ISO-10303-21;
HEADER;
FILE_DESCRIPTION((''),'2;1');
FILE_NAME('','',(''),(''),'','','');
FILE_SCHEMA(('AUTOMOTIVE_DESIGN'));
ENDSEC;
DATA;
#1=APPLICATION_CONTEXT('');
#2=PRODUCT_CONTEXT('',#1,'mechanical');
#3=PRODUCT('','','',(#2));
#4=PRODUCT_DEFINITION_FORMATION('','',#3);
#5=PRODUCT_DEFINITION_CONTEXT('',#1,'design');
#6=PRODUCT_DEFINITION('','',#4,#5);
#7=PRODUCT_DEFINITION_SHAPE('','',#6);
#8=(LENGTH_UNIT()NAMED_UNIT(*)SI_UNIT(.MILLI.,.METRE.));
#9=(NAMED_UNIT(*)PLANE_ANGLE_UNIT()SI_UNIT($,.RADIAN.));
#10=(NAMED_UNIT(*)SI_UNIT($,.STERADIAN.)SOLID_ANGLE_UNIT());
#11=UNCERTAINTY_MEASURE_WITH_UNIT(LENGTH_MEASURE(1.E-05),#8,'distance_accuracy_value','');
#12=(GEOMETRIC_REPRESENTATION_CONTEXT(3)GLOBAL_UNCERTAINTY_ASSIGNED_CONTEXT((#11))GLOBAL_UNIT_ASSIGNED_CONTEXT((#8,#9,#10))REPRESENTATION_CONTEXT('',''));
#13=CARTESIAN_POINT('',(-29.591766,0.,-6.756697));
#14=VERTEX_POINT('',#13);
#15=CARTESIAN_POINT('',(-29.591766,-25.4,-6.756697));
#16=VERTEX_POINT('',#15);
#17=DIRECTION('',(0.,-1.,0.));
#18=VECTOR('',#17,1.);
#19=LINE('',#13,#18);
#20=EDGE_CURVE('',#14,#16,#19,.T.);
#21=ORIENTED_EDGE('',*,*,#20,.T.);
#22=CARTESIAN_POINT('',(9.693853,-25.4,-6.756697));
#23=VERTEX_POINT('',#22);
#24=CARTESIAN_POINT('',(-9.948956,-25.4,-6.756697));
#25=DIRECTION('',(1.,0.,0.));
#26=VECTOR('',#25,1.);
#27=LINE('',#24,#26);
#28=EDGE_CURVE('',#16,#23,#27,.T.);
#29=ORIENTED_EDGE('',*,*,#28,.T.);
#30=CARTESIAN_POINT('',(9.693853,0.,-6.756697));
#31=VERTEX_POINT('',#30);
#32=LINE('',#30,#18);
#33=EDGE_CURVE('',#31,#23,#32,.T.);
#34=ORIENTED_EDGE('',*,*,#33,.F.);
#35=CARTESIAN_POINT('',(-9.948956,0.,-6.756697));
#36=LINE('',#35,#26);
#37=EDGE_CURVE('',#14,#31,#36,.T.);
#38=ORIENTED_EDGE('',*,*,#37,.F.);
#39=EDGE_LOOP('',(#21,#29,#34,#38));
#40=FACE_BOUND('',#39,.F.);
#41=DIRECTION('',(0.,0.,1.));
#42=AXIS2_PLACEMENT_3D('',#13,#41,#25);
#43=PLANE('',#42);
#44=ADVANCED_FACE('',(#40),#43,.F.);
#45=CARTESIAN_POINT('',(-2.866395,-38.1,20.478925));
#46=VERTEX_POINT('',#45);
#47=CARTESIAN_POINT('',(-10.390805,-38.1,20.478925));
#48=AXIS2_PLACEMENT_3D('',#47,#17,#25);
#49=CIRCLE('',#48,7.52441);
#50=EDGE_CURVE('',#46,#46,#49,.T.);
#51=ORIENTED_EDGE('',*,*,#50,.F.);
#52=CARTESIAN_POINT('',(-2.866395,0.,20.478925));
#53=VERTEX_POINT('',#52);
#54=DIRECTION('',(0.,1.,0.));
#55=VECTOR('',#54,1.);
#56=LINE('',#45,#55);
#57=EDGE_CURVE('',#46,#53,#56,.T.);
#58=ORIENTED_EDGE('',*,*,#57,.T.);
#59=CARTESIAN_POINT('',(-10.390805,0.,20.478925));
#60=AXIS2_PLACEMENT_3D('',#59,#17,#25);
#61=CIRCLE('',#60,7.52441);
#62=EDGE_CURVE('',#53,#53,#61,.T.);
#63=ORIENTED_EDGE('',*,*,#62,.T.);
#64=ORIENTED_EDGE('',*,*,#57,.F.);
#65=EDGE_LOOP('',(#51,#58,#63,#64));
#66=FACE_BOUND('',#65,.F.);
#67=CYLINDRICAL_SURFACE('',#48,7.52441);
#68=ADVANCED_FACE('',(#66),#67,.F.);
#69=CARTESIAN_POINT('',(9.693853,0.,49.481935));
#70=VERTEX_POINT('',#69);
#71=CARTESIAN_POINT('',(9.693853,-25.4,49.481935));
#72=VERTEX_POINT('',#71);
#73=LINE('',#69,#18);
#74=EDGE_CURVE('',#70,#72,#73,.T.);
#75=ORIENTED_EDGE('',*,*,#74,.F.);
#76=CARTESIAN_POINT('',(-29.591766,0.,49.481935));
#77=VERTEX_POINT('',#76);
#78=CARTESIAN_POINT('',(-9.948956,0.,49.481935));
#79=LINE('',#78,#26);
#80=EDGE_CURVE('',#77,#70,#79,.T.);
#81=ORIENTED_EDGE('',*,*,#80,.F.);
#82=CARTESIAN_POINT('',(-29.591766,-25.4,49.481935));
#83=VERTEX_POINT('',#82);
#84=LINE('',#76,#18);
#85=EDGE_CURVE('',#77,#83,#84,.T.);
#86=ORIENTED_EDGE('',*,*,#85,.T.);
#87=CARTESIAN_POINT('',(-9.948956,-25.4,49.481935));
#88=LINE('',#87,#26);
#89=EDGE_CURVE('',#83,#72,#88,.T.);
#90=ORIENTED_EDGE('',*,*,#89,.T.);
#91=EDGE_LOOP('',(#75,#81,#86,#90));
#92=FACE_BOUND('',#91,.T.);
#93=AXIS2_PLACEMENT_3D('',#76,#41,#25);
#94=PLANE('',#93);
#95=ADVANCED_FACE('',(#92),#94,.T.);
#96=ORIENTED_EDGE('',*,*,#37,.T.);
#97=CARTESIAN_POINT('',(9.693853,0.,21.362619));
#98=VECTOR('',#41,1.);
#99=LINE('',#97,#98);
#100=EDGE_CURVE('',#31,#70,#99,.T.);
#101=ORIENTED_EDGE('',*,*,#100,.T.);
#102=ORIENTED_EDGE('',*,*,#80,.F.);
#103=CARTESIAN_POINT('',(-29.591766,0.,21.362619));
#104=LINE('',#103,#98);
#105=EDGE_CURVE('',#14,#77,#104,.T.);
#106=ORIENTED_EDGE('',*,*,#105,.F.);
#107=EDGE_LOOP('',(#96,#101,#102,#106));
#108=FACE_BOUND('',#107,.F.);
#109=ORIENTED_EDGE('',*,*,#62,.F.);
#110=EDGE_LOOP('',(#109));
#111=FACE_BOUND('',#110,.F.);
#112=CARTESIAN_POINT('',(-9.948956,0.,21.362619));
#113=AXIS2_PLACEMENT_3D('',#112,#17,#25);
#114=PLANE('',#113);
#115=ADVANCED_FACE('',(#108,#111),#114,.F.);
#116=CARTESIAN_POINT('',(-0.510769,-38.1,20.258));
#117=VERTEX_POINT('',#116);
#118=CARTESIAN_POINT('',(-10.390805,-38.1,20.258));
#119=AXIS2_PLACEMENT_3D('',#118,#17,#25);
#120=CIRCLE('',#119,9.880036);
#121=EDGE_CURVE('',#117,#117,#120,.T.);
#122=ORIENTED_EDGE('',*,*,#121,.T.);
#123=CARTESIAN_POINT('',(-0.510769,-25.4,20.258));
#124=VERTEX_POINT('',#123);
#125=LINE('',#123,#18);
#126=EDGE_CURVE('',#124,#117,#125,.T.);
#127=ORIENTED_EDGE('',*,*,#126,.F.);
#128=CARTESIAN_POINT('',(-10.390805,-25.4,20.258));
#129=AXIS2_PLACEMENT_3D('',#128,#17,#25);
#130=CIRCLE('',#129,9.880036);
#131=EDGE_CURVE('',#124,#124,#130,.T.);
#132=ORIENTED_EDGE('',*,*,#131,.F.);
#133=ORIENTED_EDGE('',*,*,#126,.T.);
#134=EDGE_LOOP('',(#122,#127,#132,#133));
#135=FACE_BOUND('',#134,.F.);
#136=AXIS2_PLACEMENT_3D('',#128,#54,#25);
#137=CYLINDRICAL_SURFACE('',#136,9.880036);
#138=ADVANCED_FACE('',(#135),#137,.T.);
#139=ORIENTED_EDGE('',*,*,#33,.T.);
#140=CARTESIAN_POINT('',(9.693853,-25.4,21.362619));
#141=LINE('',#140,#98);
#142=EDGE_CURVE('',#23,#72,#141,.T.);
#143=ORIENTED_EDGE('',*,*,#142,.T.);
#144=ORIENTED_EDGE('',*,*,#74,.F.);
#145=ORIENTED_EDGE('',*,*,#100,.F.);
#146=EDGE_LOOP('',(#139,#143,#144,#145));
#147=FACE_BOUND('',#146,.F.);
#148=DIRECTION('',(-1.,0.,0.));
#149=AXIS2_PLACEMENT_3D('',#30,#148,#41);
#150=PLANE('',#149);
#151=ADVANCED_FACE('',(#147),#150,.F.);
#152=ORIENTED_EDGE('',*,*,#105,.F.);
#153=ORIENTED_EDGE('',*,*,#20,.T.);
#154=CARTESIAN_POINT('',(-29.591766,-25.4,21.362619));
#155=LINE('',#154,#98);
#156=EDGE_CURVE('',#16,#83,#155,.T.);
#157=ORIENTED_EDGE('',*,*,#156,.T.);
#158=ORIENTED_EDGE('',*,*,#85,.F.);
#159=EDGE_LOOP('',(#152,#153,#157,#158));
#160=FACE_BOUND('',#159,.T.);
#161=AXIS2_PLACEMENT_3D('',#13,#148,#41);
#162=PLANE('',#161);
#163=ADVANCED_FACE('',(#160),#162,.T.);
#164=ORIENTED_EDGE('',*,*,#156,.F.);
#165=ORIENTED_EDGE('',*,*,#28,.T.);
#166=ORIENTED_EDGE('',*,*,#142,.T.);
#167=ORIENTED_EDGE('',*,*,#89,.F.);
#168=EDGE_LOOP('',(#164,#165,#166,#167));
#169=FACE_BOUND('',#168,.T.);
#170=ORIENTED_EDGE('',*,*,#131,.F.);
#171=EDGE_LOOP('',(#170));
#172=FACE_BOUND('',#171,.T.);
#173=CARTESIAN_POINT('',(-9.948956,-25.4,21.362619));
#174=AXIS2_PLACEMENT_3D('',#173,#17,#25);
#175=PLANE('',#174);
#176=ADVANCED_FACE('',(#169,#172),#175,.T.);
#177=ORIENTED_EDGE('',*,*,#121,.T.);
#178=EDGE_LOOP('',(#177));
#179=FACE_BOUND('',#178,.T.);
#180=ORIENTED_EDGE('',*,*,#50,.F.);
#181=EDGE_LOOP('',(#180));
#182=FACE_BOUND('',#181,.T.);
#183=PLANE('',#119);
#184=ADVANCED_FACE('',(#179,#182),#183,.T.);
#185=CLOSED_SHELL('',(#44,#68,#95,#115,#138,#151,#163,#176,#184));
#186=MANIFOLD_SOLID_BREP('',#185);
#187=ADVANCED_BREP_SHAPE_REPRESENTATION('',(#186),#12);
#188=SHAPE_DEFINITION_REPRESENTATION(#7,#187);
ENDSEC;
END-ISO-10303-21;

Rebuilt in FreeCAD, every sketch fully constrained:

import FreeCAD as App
import Part
import Sketcher

V = App.Vector
Q = App.Units.Quantity

doc = App.newDocument("Part")
body = doc.addObject("PartDesign::Body", "Body")

# Sketch on XZ plane
sketch1 = body.newObject("Sketcher::SketchObject", "Sketch")
sketch1.AttachmentSupport = (doc.getObject("XZ_Plane"), [""])
sketch1.MapMode = "FlatFace"
sketch1.addGeometry(Part.LineSegment(V(-30, 49, 0), V(-30, -7, 0)), False)
sketch1.addGeometry(Part.LineSegment(V(-30, -7, 0), V(10, -7, 0)), False)
sketch1.addGeometry(Part.LineSegment(V(10, -7, 0), V(10, 49, 0)), False)
sketch1.addGeometry(Part.LineSegment(V(10, 49, 0), V(-30, 49, 0)), False)
sketch1.addConstraint(Sketcher.Constraint("Coincident", 0, 2, 1, 1))
sketch1.addConstraint(Sketcher.Constraint("Coincident", 1, 2, 2, 1))
sketch1.addConstraint(Sketcher.Constraint("Coincident", 2, 2, 3, 1))
sketch1.addConstraint(Sketcher.Constraint("Coincident", 3, 2, 0, 1))
sketch1.addConstraint(Sketcher.Constraint("Vertical", 0))
sketch1.addConstraint(Sketcher.Constraint("Horizontal", 1))
sketch1.addConstraint(Sketcher.Constraint("Vertical", 2))
sketch1.addConstraint(Sketcher.Constraint("Horizontal", 3))
sketch1.addConstraint(Sketcher.Constraint("DistanceX", 1, 1, 1, 2, Q("39.285619 mm")))
sketch1.addConstraint(Sketcher.Constraint("DistanceY", 0, 2, 0, 1, Q("56.238633 mm")))
sketch1.addConstraint(Sketcher.Constraint("DistanceX", 0, 2, -1, 1, Q("29.591766 mm")))
sketch1.addConstraint(Sketcher.Constraint("DistanceY", 0, 2, -1, 1, Q("6.756697 mm")))
pad1 = body.newObject("PartDesign::Pad", "Pad")
pad1.Profile = sketch1
pad1.Length = Q("1 in")

# Sketch on XZ plane
sketch2 = body.newObject("Sketcher::SketchObject", "Sketch001")
sketch2.AttachmentSupport = (doc.getObject("XZ_Plane"), [""])
sketch2.MapMode = "FlatFace"
sketch2.AttachmentOffset = App.Placement(V(0, 0, 1 * 25.4), App.Rotation())
sketch2.addGeometry(Part.Circle(V(-10, 20, 0), V(0, 0, 1), 10), False)
sketch2.addConstraint(Sketcher.Constraint("Diameter", 0, Q("19.760072 mm")))
sketch2.addConstraint(Sketcher.Constraint("DistanceY", -1, 1, 0, 3, Q("20.258 mm")))
sketch2.addConstraint(Sketcher.Constraint("DistanceX", 0, 3, -1, 1, Q("10.390805 mm")))
pad2 = body.newObject("PartDesign::Pad", "Pad001")
pad2.Profile = sketch2
pad2.Length = Q("0.5 in")

# Sketch on XZ plane
sketch3 = body.newObject("Sketcher::SketchObject", "Sketch002")
sketch3.AttachmentSupport = (doc.getObject("XZ_Plane"), [""])
sketch3.MapMode = "FlatFace"
sketch3.AttachmentOffset = App.Placement(V(0, 0, 1.5 * 25.4), App.Rotation())
sketch3.addGeometry(Part.Circle(V(-10, 20, 0), V(0, 0, 1), 8), False)
sketch3.addConstraint(Sketcher.Constraint("Diameter", 0, Q("15.04882 mm")))
sketch3.addConstraint(Sketcher.Constraint("DistanceX", 0, 3, -1, 1, Q("10.390805 mm")))
sketch3.addConstraint(Sketcher.Constraint("DistanceY", -1, 1, 0, 3, Q("20.478925 mm")))
pocket1 = body.newObject("PartDesign::Pocket", "Pocket")
pocket1.Profile = sketch3
pocket1.Type = "ThroughAll"

doc.recompute()
